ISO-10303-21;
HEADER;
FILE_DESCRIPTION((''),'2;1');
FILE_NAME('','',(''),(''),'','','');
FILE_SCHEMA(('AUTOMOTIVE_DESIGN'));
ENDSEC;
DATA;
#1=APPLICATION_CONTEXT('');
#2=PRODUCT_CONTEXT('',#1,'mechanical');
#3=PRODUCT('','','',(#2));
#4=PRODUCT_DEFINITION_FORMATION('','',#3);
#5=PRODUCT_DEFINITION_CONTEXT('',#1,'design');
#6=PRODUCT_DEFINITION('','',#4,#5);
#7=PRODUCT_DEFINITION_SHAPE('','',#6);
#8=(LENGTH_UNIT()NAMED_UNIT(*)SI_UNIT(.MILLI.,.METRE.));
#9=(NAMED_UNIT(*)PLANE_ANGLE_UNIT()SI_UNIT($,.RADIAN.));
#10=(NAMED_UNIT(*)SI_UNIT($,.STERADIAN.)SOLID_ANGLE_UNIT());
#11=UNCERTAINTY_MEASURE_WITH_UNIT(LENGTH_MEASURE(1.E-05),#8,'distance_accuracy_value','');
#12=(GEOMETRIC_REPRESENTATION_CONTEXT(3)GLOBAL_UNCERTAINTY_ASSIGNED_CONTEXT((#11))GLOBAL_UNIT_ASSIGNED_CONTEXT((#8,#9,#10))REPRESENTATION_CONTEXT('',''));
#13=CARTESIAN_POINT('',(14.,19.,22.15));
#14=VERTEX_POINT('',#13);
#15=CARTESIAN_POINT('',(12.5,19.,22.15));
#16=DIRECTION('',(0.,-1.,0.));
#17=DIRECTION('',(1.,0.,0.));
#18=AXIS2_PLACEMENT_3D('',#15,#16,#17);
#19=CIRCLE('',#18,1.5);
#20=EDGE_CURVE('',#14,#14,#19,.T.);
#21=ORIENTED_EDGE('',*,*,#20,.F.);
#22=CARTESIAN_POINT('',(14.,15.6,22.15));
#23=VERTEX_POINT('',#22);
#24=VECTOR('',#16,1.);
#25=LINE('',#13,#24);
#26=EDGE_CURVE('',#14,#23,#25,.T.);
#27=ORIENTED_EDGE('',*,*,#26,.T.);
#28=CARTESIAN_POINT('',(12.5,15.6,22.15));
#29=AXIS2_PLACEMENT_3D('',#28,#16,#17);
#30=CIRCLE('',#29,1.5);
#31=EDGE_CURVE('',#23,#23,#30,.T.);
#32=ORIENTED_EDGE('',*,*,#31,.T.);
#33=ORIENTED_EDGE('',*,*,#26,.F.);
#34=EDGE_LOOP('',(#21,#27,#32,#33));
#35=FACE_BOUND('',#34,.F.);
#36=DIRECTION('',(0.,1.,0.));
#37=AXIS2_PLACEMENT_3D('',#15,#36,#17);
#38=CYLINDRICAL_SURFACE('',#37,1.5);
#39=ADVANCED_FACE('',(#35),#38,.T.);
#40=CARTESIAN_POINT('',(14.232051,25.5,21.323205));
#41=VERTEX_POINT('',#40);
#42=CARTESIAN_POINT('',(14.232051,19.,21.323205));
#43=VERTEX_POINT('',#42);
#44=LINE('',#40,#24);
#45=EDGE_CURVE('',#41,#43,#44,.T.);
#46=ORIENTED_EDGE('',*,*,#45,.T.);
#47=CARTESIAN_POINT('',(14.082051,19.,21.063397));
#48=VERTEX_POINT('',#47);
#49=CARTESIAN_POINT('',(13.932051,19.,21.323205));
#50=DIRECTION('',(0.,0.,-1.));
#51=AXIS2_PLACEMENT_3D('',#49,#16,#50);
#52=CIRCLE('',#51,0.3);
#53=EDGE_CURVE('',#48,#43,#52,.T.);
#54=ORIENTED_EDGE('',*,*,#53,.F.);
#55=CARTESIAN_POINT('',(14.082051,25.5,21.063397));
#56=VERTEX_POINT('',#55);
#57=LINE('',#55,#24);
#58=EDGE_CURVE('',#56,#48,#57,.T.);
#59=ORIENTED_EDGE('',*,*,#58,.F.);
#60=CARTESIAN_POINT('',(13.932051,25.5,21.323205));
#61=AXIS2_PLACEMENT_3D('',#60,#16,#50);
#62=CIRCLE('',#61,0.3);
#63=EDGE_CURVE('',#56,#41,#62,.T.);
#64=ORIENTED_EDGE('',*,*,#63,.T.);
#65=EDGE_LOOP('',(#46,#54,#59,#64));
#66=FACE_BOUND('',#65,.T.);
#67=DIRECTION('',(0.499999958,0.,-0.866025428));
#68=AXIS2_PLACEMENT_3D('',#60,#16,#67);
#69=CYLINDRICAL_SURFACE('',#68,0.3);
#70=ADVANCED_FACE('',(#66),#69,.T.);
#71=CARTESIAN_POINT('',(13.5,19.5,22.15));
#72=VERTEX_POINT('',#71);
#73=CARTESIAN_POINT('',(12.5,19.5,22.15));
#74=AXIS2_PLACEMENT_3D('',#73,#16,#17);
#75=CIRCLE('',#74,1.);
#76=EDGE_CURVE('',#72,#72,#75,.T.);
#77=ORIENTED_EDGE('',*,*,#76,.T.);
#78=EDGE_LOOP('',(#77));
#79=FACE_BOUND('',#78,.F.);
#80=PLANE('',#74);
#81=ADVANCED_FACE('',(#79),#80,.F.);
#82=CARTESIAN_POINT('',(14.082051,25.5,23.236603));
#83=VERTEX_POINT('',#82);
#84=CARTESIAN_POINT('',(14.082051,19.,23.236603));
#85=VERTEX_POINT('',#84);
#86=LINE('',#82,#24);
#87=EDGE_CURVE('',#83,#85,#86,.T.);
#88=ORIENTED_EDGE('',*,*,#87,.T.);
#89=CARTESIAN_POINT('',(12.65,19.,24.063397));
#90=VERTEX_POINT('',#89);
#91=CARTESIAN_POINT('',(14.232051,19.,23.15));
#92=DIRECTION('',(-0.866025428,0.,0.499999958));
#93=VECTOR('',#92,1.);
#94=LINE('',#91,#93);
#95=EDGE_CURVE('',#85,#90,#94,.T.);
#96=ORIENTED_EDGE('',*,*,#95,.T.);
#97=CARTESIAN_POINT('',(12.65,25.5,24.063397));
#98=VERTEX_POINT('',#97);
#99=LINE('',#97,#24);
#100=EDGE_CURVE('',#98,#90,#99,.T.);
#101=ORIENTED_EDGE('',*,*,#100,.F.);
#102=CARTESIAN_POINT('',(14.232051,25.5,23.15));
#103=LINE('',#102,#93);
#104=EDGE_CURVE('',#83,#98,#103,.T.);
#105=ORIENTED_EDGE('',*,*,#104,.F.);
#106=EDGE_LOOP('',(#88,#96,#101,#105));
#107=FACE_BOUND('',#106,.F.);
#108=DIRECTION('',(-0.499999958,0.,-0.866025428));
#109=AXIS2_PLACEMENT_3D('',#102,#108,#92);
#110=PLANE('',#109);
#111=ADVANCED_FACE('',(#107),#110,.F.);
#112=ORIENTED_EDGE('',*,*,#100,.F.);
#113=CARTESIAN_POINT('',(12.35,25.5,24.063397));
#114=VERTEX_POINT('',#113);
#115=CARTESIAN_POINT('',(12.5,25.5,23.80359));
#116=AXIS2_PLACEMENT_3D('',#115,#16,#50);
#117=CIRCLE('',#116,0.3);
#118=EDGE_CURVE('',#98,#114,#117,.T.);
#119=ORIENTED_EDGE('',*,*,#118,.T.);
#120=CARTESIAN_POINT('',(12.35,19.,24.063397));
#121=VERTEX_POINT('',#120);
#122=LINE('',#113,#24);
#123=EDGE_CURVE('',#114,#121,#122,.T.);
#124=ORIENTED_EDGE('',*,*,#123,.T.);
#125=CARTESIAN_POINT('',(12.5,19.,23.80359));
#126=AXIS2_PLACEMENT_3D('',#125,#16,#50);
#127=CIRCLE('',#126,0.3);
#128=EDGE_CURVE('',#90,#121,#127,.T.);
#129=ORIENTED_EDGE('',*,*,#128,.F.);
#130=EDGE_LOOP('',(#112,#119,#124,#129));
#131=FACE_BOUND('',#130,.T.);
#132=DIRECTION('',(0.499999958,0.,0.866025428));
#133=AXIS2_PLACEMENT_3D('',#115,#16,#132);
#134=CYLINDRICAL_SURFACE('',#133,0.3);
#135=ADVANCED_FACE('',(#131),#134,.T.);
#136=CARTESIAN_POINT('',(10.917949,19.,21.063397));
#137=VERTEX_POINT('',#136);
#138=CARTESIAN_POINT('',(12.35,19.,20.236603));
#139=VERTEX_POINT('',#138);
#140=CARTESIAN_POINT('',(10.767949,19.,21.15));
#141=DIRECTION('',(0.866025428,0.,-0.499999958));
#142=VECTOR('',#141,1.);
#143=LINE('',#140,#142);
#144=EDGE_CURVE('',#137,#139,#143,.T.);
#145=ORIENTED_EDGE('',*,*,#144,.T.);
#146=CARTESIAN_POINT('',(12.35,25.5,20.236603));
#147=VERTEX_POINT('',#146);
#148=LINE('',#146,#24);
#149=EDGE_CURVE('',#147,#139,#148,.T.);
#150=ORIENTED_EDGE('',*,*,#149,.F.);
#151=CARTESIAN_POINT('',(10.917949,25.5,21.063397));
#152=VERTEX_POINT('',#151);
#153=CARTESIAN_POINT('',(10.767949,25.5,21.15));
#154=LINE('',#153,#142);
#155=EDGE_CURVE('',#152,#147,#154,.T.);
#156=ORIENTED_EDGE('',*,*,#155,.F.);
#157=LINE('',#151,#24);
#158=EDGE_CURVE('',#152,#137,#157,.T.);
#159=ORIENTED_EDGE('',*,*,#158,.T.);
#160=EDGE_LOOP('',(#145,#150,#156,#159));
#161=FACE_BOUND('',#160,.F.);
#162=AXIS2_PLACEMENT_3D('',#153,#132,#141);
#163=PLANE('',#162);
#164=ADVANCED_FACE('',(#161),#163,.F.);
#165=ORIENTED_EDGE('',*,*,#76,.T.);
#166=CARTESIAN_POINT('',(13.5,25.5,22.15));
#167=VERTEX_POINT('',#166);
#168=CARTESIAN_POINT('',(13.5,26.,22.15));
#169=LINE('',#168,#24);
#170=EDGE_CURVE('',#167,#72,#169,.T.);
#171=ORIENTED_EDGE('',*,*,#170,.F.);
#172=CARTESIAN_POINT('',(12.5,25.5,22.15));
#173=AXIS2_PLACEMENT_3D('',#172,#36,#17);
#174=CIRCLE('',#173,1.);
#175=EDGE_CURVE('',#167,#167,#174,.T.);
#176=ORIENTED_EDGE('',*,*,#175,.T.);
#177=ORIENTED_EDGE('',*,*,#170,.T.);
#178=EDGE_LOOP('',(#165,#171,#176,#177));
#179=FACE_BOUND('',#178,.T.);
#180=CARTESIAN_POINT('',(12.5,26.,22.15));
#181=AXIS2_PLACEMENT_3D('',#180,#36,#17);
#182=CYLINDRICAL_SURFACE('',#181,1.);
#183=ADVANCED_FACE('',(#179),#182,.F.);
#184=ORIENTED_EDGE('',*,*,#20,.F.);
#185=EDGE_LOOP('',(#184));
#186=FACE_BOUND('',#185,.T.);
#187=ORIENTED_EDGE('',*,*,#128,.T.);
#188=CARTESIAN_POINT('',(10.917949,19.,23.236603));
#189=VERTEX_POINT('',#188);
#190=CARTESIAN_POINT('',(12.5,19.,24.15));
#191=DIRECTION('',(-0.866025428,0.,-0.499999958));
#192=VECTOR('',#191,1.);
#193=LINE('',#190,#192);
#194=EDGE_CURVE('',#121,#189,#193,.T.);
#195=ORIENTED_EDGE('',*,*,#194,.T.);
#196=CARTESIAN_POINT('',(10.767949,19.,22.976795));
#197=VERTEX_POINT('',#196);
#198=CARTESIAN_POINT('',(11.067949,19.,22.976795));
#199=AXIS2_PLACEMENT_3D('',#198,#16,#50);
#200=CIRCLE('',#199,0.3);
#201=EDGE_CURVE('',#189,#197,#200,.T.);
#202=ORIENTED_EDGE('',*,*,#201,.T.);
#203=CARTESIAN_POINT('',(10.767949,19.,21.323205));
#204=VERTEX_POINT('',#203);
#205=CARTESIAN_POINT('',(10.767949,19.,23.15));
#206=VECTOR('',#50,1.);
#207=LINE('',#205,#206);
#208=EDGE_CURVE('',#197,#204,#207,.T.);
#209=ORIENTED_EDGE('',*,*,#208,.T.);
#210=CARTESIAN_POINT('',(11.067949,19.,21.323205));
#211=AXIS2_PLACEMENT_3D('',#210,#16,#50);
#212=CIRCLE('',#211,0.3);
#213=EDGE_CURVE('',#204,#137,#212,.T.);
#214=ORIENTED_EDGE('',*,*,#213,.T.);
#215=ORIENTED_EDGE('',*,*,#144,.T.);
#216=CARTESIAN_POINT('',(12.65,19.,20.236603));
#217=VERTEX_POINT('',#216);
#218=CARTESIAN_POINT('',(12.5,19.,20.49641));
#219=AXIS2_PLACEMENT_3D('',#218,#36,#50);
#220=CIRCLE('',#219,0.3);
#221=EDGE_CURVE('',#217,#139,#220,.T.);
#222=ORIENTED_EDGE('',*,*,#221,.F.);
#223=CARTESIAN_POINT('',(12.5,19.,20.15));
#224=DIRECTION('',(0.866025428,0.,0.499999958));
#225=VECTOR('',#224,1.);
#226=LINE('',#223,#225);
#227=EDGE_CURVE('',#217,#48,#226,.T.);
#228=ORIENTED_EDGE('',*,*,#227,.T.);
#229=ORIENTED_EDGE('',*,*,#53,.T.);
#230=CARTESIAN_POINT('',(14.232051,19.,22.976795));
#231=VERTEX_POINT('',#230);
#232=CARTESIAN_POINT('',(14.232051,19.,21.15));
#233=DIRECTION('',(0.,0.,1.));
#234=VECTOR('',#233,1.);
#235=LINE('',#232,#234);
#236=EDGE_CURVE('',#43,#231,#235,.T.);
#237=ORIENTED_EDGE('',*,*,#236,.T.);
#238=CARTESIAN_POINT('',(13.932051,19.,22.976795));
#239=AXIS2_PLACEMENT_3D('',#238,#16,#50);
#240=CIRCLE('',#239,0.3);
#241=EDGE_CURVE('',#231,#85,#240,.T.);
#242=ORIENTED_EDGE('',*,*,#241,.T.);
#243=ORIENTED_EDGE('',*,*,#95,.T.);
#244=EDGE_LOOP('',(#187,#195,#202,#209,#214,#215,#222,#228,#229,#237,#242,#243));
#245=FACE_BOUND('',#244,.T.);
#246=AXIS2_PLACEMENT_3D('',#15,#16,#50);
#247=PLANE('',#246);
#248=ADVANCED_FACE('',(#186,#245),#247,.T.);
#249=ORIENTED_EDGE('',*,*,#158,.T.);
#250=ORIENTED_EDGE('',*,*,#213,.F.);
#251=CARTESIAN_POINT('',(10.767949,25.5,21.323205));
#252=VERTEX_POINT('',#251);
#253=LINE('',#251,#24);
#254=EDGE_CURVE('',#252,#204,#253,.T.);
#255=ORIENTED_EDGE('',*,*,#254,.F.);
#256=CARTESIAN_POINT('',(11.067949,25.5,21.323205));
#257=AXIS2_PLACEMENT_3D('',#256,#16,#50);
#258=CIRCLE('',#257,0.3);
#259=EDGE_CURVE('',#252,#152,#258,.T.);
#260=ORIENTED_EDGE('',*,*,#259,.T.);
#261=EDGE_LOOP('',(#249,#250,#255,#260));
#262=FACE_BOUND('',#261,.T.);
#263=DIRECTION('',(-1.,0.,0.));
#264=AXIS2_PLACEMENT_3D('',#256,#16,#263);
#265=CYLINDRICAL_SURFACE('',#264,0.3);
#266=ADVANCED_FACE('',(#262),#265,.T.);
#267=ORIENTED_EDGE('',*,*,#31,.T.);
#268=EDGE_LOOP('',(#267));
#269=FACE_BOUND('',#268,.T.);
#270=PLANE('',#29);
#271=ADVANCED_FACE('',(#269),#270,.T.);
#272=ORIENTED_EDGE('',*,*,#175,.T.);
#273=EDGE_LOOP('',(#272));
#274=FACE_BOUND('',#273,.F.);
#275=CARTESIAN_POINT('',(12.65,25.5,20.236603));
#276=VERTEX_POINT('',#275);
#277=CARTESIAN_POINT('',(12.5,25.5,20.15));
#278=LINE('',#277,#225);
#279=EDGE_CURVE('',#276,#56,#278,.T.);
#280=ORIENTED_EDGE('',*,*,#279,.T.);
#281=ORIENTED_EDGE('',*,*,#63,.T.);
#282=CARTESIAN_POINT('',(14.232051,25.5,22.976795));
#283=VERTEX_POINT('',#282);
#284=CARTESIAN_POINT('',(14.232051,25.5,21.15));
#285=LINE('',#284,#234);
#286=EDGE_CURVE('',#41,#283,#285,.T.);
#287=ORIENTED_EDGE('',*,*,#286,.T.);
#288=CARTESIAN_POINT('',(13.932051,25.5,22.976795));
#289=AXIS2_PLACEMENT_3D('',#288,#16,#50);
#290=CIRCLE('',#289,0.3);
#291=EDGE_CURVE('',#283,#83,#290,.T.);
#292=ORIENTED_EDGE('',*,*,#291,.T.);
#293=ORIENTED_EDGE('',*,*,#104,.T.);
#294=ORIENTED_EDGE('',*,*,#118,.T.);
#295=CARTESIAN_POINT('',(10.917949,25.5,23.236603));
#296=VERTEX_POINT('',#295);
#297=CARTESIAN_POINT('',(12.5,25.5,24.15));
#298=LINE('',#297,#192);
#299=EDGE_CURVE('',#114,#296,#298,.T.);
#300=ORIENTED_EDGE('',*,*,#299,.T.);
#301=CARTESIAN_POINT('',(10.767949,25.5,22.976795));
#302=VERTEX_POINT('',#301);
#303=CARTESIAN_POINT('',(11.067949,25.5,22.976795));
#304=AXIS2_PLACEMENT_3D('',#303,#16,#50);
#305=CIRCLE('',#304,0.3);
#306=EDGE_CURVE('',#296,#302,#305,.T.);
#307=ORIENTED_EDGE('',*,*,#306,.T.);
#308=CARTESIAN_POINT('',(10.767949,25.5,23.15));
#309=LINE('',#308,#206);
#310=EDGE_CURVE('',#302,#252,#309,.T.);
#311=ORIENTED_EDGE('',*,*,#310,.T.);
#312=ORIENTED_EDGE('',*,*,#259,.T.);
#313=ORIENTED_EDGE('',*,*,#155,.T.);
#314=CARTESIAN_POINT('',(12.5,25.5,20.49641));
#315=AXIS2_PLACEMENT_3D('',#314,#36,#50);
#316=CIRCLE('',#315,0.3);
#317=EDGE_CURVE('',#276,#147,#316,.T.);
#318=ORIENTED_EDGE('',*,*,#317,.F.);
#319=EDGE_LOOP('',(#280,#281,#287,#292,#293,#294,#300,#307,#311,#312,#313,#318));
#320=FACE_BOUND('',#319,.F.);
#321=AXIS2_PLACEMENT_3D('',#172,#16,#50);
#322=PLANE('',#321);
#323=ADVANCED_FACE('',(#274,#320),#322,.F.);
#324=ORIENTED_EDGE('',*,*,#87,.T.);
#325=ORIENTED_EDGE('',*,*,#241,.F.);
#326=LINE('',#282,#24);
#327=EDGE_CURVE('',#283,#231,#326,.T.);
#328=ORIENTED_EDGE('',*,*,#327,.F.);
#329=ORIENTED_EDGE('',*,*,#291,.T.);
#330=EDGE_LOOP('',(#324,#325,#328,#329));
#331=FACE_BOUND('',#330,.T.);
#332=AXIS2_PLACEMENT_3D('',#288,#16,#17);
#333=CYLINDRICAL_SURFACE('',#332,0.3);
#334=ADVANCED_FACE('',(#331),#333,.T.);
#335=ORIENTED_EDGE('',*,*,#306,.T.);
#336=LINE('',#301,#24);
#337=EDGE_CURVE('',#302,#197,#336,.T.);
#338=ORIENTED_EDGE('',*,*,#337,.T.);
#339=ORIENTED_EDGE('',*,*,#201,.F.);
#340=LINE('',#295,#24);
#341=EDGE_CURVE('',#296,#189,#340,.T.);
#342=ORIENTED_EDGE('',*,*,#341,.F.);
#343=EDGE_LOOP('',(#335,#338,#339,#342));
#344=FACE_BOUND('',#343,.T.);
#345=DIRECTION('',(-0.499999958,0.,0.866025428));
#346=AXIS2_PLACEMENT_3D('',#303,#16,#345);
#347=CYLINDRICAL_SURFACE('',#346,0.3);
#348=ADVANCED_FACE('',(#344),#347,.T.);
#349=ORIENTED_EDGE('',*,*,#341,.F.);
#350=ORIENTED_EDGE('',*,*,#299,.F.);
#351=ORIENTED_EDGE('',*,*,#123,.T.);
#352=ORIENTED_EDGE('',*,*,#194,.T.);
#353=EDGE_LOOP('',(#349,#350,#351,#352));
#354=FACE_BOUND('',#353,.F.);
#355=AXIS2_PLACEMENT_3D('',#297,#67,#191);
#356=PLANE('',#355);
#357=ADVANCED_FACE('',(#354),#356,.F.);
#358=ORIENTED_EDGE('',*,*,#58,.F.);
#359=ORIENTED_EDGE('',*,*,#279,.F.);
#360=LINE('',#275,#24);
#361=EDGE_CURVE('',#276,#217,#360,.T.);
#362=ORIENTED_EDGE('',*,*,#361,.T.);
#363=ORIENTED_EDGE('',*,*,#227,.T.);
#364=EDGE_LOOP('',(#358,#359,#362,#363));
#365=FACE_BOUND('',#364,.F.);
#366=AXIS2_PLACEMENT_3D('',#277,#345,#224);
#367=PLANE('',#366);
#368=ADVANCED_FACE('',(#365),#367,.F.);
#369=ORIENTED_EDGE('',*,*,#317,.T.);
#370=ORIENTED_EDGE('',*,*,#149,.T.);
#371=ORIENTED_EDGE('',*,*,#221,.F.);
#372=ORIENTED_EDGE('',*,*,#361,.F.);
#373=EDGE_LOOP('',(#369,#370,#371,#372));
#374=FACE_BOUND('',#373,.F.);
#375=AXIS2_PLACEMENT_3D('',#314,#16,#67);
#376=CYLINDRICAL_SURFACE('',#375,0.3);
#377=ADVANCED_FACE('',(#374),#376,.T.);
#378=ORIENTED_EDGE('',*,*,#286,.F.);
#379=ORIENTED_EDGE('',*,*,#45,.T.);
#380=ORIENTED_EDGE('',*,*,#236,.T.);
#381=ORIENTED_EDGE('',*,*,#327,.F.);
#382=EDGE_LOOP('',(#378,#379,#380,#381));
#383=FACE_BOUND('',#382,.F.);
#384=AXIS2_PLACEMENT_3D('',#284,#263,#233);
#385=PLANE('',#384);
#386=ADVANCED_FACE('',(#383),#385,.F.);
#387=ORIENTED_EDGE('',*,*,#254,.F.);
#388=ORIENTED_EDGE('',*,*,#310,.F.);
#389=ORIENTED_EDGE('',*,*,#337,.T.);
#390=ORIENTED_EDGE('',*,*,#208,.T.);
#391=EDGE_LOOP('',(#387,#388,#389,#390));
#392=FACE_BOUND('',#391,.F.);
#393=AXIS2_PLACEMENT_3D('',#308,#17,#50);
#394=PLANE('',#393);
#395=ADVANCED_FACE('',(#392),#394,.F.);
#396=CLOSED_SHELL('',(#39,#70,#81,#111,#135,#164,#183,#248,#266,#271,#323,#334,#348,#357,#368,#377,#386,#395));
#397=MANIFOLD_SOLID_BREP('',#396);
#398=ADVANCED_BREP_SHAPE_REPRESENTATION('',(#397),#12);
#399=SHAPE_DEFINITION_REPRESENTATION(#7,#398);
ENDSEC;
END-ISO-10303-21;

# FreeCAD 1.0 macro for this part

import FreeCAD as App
import Part
import Sketcher
Q = App.Units.Quantity


def edges_at(feature, points):
    """Names of the edges that pass closest to the given points."""
    edges = feature.Shape.Edges
    near = lambda p: min(range(len(edges)), key=lambda i: edges[i].distToShape(Part.Vertex(*p))[0])
    return sorted({f"Edge{near(p) + 1}" for p in points})


def add_polygon(sketch, points):
    """Adds a closed chain of lines whose ends are joined by coincident constraints."""
    first, n = sketch.GeometryCount, len(points)
    for a, b in zip(points, points[1:] + points[:1]):
        sketch.addGeometry(Part.LineSegment(App.Vector(*a, 0), App.Vector(*b, 0)), False)
    for i in range(n):
        sketch.addConstraint(Sketcher.Constraint("Coincident", first + i, 2, first + (i + 1) % n, 1))

doc = App.newDocument("Part")
body = doc.addObject("PartDesign::Body", "Body")

# Sketch on XZ plane
sketch1 = doc.addObject("Sketcher::SketchObject", "Sketch")
body.addObject(sketch1)
sketch1.AttachmentSupport = (doc.XZ_Plane, [""])
sketch1.MapMode = "FlatFace"
sketch1.AttachmentOffset = App.Placement(App.Vector(0, 0, -25.5), App.Rotation())
add_polygon(sketch1, [(12.5, 4.3), (14.2, 5.3), (14.2, 7.3), (12.5, 8.3), (10.8, 7.3), (10.8, 5.3)])  # lines 0-5
sketch1.addConstraint(Sketcher.Constraint("Vertical", 1))
sketch1.addConstraint(Sketcher.Constraint("Vertical", 4))
sketch1.addConstraint(Sketcher.Constraint("Parallel", 0, 3))
sketch1.addConstraint(Sketcher.Constraint("Parallel", 2, 5))
sketch1.addConstraint(Sketcher.Constraint("Horizontal", 1, 2, 3, 2))
sketch1.addConstraint(Sketcher.Constraint("Horizontal", 0, 2, 4, 2))
sketch1.addConstraint(Sketcher.Constraint("Vertical", 2, 2, 5, 2))
sketch1.addConstraint(Sketcher.Constraint("DistanceY", 1, 1, 1, 2, Q("2 mm")))
sketch1.addConstraint(Sketcher.Constraint("Angle", 0, Q("29.999997 deg")))
sketch1.addConstraint(Sketcher.Constraint("Distance", 0, Q("2 mm")))
sketch1.addConstraint(Sketcher.Constraint("DistanceY", -1, 1, 0, 2, Q("5.3 mm")))
sketch1.addConstraint(Sketcher.Constraint("DistanceX", -1, 1, 2, 2, Q("12.5 mm")))
pad1 = doc.addObject("PartDesign::Pad", "Pad")
body.addObject(pad1)
pad1.Profile = sketch1
pad1.Length = 6.5
doc.recompute()

fillet = doc.addObject("PartDesign::Fillet", "Fillet")
body.addObject(fillet)
fillet.Base = (pad1, edges_at(pad1, [
    (12.5, 22.25, 8.3),
    (14.232, 22.25, 7.3),
    (10.768, 22.25, 7.3),
    (14.232, 22.25, 5.3),
    (12.5, 22.25, 4.3),
    (10.768, 22.25, 5.3),
]))
fillet.Radius = 0.3

# Sketch on XZ plane
sketch2 = doc.addObject("Sketcher::SketchObject", "Sketch001")
body.addObject(sketch2)
sketch2.AttachmentSupport = (doc.XZ_Plane, [""])
sketch2.MapMode = "FlatFace"
sketch2.AttachmentOffset = App.Placement(App.Vector(0, 0, -19), App.Rotation())
sketch2.addGeometry(Part.Circle(App.Vector(12.5, 6.3, 0), App.Vector(0, 0, 1), 1.5), False)
sketch2.addConstraint(Sketcher.Constraint("Diameter", 0, Q("3 mm")))
sketch2.addConstraint(Sketcher.Constraint("DistanceX", -1, 1, 0, 3, Q("12.5 mm")))
sketch2.addConstraint(Sketcher.Constraint("DistanceY", -1, 1, 0, 3, Q("6.3 mm")))
pad2 = doc.addObject("PartDesign::Pad", "Pad001")
body.addObject(pad2)
pad2.Profile = sketch2
pad2.Length = 3.4

# Sketch on XZ plane
sketch3 = doc.addObject("Sketcher::SketchObject", "Sketch002")
body.addObject(sketch3)
sketch3.AttachmentSupport = (doc.XZ_Plane, [""])
sketch3.MapMode = "FlatFace"
sketch3.AttachmentOffset = App.Placement(App.Vector(0, 0, -26), App.Rotation())
sketch3.addGeometry(Part.Circle(App.Vector(12.5, 6.3, 0), App.Vector(0, 0, 1), 1), False)
sketch3.addConstraint(Sketcher.Constraint("Diameter", 0, Q("2 mm")))
sketch3.addConstraint(Sketcher.Constraint("DistanceX", -1, 1, 0, 3, Q("12.5 mm")))
sketch3.addConstraint(Sketcher.Constraint("DistanceY", -1, 1, 0, 3, Q("6.3 mm")))
pocket1 = doc.addObject("PartDesign::Pocket", "Pocket")
body.addObject(pocket1)
pocket1.Profile = sketch3
pocket1.Length = 6.5
pocket1.Reversed = True
body2 = doc.addObject("PartDesign::Body", "Body001")
doc.recompute()

body.Placement = App.Placement(App.Vector(0, 0, 15.85), App.Rotation(App.Vector(0, 0, 1), 0))
boolean = doc.addObject("PartDesign::Boolean", "Boolean")
body2.addObject(boolean)
boolean.Type = "Fuse"
boolean.addObjects([body])

doc.recompute()
